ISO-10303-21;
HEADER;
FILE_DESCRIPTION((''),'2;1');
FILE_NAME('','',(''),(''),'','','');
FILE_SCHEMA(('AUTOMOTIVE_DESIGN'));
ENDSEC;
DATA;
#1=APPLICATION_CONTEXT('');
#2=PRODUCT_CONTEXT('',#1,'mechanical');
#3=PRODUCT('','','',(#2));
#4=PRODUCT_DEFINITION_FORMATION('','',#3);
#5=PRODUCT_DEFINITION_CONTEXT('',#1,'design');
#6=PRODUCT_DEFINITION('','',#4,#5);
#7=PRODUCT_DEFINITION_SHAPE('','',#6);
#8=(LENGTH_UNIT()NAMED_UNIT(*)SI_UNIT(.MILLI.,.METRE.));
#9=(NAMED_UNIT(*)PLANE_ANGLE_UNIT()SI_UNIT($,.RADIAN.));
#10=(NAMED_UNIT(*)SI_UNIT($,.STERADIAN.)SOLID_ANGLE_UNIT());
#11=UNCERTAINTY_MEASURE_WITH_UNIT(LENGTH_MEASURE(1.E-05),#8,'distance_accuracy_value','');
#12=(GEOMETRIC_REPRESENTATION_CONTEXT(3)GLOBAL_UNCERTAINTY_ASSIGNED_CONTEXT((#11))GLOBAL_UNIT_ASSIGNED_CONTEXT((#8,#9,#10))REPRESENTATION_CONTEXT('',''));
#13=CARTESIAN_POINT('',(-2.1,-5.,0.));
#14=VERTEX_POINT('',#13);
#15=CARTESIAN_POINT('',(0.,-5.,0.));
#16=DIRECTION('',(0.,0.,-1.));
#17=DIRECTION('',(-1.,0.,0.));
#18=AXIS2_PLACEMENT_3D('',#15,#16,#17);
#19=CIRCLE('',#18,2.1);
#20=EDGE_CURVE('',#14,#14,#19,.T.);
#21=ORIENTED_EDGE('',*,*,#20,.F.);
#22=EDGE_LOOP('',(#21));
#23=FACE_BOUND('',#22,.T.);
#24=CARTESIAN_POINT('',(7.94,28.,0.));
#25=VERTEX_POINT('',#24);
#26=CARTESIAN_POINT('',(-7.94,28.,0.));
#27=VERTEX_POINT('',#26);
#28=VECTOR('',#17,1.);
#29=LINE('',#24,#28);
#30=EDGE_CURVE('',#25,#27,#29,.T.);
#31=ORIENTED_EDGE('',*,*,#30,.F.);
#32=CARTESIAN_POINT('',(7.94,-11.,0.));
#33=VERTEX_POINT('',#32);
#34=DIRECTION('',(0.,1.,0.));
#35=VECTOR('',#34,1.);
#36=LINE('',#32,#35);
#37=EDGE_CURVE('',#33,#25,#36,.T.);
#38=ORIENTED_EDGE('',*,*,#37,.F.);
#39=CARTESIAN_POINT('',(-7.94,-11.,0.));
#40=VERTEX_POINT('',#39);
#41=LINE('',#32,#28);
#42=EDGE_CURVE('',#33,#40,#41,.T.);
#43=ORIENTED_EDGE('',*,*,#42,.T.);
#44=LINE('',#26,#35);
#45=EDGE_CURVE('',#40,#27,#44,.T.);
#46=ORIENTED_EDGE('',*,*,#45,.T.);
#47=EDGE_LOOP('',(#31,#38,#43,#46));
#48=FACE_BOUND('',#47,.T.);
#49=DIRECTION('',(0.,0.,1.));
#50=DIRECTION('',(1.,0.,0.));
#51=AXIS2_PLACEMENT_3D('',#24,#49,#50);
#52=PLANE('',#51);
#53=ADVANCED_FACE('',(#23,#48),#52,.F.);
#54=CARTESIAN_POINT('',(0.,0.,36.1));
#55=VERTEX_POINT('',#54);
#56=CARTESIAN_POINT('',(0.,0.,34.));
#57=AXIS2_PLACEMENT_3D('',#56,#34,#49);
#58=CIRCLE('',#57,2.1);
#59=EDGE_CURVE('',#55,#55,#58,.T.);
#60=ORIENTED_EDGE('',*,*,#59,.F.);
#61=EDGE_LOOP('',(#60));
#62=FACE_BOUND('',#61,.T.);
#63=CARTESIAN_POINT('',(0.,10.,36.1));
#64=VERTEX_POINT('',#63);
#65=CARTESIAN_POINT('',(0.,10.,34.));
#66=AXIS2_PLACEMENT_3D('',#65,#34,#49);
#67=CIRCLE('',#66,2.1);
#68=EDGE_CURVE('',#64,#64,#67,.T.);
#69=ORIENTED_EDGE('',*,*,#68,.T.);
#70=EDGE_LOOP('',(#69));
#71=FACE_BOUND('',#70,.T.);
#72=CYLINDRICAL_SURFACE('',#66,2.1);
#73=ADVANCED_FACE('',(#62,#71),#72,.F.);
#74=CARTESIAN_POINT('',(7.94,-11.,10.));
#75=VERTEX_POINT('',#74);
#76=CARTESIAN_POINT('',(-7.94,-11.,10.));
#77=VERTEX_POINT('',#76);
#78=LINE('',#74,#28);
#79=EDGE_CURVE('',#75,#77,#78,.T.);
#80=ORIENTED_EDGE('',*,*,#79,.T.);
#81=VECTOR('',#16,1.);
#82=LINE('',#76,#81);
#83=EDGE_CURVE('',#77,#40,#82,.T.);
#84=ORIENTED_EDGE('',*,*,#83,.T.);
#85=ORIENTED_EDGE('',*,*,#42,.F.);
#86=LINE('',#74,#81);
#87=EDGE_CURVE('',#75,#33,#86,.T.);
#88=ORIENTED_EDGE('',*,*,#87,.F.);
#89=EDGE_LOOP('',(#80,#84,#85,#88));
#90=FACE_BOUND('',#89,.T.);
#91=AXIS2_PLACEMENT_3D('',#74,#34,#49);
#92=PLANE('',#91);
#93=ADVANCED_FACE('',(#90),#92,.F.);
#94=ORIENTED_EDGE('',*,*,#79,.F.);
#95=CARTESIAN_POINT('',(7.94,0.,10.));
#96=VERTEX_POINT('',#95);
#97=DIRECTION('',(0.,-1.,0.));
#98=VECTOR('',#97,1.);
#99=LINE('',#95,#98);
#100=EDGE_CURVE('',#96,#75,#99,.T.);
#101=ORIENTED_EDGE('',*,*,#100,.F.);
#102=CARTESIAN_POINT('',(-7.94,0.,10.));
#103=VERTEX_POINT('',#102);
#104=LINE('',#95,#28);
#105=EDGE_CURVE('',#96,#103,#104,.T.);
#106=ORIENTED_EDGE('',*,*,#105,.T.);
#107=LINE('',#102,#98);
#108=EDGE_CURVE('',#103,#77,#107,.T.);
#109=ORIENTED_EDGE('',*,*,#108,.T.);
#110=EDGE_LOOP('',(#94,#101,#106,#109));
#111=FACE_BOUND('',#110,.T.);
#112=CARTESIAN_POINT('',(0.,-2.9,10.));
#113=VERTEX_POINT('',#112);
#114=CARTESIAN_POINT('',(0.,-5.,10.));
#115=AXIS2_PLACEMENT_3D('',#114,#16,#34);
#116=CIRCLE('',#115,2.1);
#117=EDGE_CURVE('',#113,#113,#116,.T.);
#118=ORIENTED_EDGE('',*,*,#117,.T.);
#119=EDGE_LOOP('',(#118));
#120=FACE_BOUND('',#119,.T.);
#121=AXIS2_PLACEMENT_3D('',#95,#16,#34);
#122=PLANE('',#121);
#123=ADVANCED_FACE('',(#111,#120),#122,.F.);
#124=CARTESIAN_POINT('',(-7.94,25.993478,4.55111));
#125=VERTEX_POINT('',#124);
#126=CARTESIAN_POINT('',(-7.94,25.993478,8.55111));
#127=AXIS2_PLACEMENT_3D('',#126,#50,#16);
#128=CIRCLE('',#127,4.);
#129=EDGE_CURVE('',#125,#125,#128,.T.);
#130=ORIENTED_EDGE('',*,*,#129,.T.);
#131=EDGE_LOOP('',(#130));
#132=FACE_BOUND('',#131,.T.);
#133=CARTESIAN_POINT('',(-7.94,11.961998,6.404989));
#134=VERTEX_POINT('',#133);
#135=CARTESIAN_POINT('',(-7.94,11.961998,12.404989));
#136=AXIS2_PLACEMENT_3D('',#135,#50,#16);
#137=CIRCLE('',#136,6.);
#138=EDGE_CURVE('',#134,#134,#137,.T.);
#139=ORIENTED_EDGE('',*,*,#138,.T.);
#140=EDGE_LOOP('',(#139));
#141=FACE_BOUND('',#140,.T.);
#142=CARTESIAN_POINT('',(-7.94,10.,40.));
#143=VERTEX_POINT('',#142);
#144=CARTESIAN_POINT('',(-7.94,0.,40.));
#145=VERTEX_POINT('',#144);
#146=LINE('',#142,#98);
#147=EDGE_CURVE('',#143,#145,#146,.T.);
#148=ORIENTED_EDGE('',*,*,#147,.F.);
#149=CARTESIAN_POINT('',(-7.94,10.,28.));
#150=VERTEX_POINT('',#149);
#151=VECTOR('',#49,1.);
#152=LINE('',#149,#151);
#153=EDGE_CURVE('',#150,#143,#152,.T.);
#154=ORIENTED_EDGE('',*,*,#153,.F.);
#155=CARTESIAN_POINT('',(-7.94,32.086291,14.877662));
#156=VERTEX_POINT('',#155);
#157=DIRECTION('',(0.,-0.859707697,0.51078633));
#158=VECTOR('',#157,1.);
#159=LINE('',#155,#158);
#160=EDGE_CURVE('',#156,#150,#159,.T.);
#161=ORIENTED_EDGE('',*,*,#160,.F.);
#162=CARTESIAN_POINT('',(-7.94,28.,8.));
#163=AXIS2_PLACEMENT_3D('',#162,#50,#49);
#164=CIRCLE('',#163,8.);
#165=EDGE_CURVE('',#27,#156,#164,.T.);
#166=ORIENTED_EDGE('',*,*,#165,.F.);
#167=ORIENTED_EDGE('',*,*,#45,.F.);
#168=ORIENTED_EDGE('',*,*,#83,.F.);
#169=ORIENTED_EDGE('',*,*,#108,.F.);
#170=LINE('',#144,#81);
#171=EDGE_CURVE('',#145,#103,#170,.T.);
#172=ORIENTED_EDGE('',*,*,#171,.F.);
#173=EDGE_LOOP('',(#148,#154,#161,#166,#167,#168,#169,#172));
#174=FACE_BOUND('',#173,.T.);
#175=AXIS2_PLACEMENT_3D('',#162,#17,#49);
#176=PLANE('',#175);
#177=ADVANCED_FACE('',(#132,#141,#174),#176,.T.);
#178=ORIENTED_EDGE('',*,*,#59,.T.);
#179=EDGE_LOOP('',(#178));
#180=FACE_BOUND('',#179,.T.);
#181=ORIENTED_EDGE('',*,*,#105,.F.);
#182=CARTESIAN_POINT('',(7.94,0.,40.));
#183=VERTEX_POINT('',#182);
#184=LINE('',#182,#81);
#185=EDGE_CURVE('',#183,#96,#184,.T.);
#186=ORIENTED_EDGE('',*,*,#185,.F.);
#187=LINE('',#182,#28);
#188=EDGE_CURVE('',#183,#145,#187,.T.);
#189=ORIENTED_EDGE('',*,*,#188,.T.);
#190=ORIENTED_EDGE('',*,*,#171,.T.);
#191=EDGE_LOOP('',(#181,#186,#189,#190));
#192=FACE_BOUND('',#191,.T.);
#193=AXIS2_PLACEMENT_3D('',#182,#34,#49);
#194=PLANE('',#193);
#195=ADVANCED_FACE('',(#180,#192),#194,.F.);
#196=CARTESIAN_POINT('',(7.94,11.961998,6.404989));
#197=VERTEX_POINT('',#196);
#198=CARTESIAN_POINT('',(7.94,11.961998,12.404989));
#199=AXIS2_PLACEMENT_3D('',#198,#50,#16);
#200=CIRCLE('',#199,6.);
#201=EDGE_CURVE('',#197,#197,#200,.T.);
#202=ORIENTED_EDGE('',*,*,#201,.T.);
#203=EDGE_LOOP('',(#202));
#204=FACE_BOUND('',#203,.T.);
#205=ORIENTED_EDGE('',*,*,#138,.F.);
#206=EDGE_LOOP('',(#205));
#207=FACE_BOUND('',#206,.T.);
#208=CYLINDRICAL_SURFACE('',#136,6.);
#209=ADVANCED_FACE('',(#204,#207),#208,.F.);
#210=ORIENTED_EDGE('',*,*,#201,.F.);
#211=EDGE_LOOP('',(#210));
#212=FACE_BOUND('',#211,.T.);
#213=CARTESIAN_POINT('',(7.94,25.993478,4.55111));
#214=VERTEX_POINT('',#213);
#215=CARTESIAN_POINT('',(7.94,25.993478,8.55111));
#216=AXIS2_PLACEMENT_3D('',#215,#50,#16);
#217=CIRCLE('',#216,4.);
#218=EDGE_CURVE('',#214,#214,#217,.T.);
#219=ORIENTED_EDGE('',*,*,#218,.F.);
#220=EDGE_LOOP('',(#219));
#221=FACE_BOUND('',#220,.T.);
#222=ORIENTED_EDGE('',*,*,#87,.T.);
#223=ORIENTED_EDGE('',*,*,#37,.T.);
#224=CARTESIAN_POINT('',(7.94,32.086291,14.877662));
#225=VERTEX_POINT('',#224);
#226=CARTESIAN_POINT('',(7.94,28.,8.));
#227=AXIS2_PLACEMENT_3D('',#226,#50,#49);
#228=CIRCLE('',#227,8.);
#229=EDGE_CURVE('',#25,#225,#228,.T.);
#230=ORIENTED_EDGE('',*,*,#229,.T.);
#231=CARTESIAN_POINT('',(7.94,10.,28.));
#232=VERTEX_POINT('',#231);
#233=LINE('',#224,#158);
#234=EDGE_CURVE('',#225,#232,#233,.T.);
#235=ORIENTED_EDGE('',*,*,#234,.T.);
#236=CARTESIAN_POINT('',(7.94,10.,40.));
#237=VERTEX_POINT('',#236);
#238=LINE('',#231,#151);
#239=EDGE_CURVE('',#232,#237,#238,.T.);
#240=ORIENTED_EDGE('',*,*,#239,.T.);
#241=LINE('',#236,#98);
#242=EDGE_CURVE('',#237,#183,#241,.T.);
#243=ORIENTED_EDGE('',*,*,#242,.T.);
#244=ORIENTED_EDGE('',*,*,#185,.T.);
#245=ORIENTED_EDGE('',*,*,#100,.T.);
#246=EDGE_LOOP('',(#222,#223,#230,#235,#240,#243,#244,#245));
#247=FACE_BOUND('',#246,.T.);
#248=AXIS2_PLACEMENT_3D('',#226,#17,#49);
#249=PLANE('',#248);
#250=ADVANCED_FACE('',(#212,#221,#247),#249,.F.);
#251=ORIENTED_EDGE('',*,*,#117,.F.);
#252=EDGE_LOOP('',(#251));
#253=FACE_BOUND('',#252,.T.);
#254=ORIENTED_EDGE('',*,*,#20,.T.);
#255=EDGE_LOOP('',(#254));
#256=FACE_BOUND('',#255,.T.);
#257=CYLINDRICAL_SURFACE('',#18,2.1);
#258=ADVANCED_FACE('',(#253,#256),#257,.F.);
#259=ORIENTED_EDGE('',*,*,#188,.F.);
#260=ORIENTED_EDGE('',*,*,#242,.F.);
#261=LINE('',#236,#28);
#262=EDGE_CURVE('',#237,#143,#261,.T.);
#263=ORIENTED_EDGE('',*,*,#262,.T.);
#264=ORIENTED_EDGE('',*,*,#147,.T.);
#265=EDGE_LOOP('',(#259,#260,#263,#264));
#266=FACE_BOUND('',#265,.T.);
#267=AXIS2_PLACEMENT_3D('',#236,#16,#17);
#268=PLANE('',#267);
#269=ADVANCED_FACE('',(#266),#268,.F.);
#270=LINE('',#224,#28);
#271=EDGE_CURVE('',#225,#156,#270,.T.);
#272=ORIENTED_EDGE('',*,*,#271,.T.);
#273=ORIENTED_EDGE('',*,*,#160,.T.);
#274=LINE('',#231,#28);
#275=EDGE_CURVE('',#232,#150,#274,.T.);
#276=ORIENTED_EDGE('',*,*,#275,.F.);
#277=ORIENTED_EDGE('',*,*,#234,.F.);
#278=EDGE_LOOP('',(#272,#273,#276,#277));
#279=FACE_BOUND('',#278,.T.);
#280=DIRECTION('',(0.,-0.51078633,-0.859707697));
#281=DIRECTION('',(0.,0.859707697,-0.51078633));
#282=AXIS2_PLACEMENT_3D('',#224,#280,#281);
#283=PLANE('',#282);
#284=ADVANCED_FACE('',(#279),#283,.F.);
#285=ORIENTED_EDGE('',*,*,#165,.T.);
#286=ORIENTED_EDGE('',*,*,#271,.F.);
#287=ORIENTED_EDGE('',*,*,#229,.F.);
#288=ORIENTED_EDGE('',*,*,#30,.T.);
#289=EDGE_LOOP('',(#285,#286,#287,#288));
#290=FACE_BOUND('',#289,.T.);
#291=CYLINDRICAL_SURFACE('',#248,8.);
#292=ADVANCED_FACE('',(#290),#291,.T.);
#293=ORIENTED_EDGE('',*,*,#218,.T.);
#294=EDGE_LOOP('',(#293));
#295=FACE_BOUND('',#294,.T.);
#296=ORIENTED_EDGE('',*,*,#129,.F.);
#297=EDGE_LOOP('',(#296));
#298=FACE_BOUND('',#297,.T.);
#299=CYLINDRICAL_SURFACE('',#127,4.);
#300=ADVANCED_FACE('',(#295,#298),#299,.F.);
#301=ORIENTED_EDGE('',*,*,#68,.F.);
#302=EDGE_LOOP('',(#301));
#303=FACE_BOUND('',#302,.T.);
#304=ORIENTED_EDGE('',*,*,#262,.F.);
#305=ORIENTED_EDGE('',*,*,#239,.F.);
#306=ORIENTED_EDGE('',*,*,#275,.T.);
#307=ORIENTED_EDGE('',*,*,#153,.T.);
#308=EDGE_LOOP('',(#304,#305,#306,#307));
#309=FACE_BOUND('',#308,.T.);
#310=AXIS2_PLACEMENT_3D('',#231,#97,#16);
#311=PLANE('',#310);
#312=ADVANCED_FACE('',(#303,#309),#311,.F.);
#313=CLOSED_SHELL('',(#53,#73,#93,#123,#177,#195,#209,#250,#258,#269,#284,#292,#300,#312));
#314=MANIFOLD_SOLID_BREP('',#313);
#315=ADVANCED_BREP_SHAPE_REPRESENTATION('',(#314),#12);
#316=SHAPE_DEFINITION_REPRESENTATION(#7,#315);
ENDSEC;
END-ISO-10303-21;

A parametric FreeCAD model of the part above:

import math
import FreeCAD as App
import Part
import Sketcher
Q = App.Units.Quantity

doc = App.newDocument("Part")
body = doc.addObject("PartDesign::Body", "Body")

# Sketch on YZ plane
sketch1 = body.newObject("Sketcher::SketchObject", "Sketch")
sketch1.AttachmentSupport = (doc.getObject("YZ_Plane"), [""])
sketch1.MapMode = "FlatFace"
sketch1.addGeometry([
    Part.LineSegment(App.Vector(0, 40, 0), App.Vector(0, 10, 0)),  # 0
    Part.LineSegment(App.Vector(0, 10, 0), App.Vector(-11, 10, 0)),  # 1
    Part.LineSegment(App.Vector(-11, 10, 0), App.Vector(-11, 0, 0)),  # 2
    Part.LineSegment(App.Vector(-11, 0, 0), App.Vector(28, 0, 0)),  # 3
    Part.ArcOfCircle(Part.Circle(App.Vector(28, 8, 0), App.Vector(0, 0, 1), 8), math.radians(-90), math.radians(59)),  # 4
    Part.LineSegment(App.Vector(32, 15, 0), App.Vector(10, 28, 0)),  # 5
    Part.LineSegment(App.Vector(10, 28, 0), App.Vector(10, 40, 0)),  # 6
    Part.LineSegment(App.Vector(10, 40, 0), App.Vector(0, 40, 0)),  # 7
], False)
sketch1.addConstraint([
    Sketcher.Constraint("Coincident", 0, 2, 1, 1),
    Sketcher.Constraint("Coincident", 1, 2, 2, 1),
    Sketcher.Constraint("Coincident", 2, 2, 3, 1),
    Sketcher.Constraint("Tangent", 3, 2, 4, 1),
    Sketcher.Constraint("Tangent", 4, 2, 5, 1),
    Sketcher.Constraint("Coincident", 5, 2, 6, 1),
    Sketcher.Constraint("Coincident", 6, 2, 7, 1),
    Sketcher.Constraint("Coincident", 7, 2, 0, 1),
    Sketcher.Constraint("Vertical", 0),
    Sketcher.Constraint("Horizontal", 1),
    Sketcher.Constraint("Vertical", 2),
    Sketcher.Constraint("Horizontal", 3),
    Sketcher.Constraint("Vertical", 6),
    Sketcher.Constraint("Horizontal", 7),
    Sketcher.Constraint("PointOnObject", 0, 2, -2),
    Sketcher.Constraint("PointOnObject", 2, 2, -1),
    Sketcher.Constraint("Equal", 7, 2),
    Sketcher.Constraint("Radius", 4, Q("8 mm")),
    Sketcher.Constraint("DistanceX", 1, 2, 1, 1, Q("11 mm")),
    Sketcher.Constraint("DistanceX", 3, 1, 3, 2, Q("39 mm")),
    Sketcher.Constraint("DistanceX", 7, 2, 7, 1, Q("10 mm")),
    Sketcher.Constraint("DistanceY", 0, 2, 0, 1, Q("30 mm")),
    Sketcher.Constraint("DistanceY", 6, 1, 6, 2, Q("12 mm")),
])
pad1 = body.newObject("PartDesign::Pad", "Pad")
pad1.Profile = sketch1
pad1.Length = 15.88
pad1.Midplane = True

# Sketch on XZ plane
sketch2 = body.newObject("Sketcher::SketchObject", "Sketch001")
sketch2.AttachmentSupport = (doc.getObject("XZ_Plane"), [""])
sketch2.MapMode = "FlatFace"
sketch2.AttachmentOffset = App.Placement(App.Vector(0, 0, -10), App.Rotation())
sketch2.addGeometry([
    Part.Circle(App.Vector(66.1, 34, 0), App.Vector(0, 0, 1), 2.1),
    Part.Circle(App.Vector(0, 34, 0), App.Vector(0, 0, 1), 2.1),
], False)
sketch2.addConstraint([
    Sketcher.Constraint("Equal", 0, 1),
    Sketcher.Constraint("PointOnObject", 1, 3, -2),
    Sketcher.Constraint("Horizontal", 0, 3, 1, 3),
    Sketcher.Constraint("Diameter", 0, Q("4.2 mm")),
    Sketcher.Constraint("DistanceY", -1, 1, 0, 3, Q("34 mm")),
    Sketcher.Constraint("DistanceX", -1, 1, 0, 3, Q("66.125 mm")),
])
doc.recompute()
hole = body.newObject("PartDesign::Hole", "Hole")
hole.Profile = sketch2
hole.ThreadType = "None"
hole.Diameter = 4.2
hole.DepthType = "Dimension"
hole.Depth = 20
hole.DrillPoint = "Angled"
hole.DrillPointAngle = 118
hole.Reversed = True

# Sketch on XZ plane
sketch3 = body.newObject("Sketcher::SketchObject", "Sketch002")
sketch3.AttachmentSupport = (doc.getObject("XZ_Plane"), [""])
sketch3.MapMode = "FlatFace"
sketch3.AttachmentOffset = App.Placement(App.Vector(0, 0, -10), App.Rotation())
sketch3.addGeometry([
    Part.Circle(App.Vector(0, 34, 0), App.Vector(0, 0, 1), 2.1),
    Part.Circle(App.Vector(-66.1, 34, 0), App.Vector(0, 0, 1), 2.1),
], False)
sketch3.addConstraint([
    Sketcher.Constraint("Equal", 0, 1),
    Sketcher.Constraint("PointOnObject", 0, 3, -2),
    Sketcher.Constraint("Horizontal", 0, 3, 1, 3),
    Sketcher.Constraint("Diameter", 0, Q("4.2 mm")),
    Sketcher.Constraint("DistanceY", -1, 1, 0, 3, Q("34 mm")),
    Sketcher.Constraint("DistanceX", 1, 3, -1, 1, Q("66.125 mm")),
])
doc.recompute()
hole2 = body.newObject("PartDesign::Hole", "Hole001")
hole2.Profile = sketch3
hole2.ThreadType = "None"
hole2.Diameter = 4.2
hole2.DepthType = "Dimension"
hole2.Depth = 20
hole2.DrillPoint = "Angled"
hole2.DrillPointAngle = 118
hole2.Reversed = True

# Sketch on XY plane
sketch4 = body.newObject("Sketcher::SketchObject", "Sketch003")
sketch4.AttachmentSupport = (doc.getObject("XY_Plane"), [""])
sketch4.MapMode = "FlatFace"
sketch4.addGeometry([
    Part.Circle(App.Vector(66.1, -5, 0), App.Vector(0, 0, 1), 2.1),
    Part.Circle(App.Vector(0, -5, 0), App.Vector(0, 0, 1), 2.1),
], False)
sketch4.addConstraint([
    Sketcher.Constraint("Equal", 0, 1),
    Sketcher.Constraint("PointOnObject", 1, 3, -2),
    Sketcher.Constraint("Horizontal", 0, 3, 1, 3),
    Sketcher.Constraint("Diameter", 0, Q("4.2 mm")),
    Sketcher.Constraint("DistanceY", 0, 3, -1, 1, Q("5 mm")),
    Sketcher.Constraint("DistanceX", -1, 1, 0, 3, Q("66.125 mm")),
])
doc.recompute()
hole3 = body.newObject("PartDesign::Hole", "Hole002")
hole3.Profile = sketch4
hole3.ThreadType = "None"
hole3.Diameter = 4.2
hole3.DepthType = "Dimension"
hole3.Depth = 20
hole3.DrillPoint = "Angled"
hole3.DrillPointAngle = 118
hole3.Reversed = True

# Sketch on XY plane
sketch5 = body.newObject("Sketcher::SketchObject", "Sketch004")
sketch5.AttachmentSupport = (doc.getObject("XY_Plane"), [""])
sketch5.MapMode = "FlatFace"
sketch5.addGeometry([
    Part.Circle(App.Vector(0, -5, 0), App.Vector(0, 0, 1), 2.1),
    Part.Circle(App.Vector(-66.1, -5, 0), App.Vector(0, 0, 1), 2.1),
], False)
sketch5.addConstraint([
    Sketcher.Constraint("Equal", 0, 1),
    Sketcher.Constraint("PointOnObject", 0, 3, -2),
    Sketcher.Constraint("Horizontal", 0, 3, 1, 3),
    Sketcher.Constraint("Diameter", 0, Q("4.2 mm")),
    Sketcher.Constraint("DistanceY", 0, 3, -1, 1, Q("5 mm")),
    Sketcher.Constraint("DistanceX", 1, 3, -1, 1, Q("66.125 mm")),
])
doc.recompute()
hole4 = body.newObject("PartDesign::Hole", "Hole003")
hole4.Profile = sketch5
hole4.ThreadType = "None"
hole4.Diameter = 4.2
hole4.DepthType = "Dimension"
hole4.Depth = 20
hole4.DrillPoint = "Angled"
hole4.DrillPointAngle = 118
hole4.Reversed = True

# Sketch on YZ plane
sketch6 = body.newObject("Sketcher::SketchObject", "Sketch005")
sketch6.AttachmentSupport = (doc.getObject("YZ_Plane"), [""])
sketch6.MapMode = "FlatFace"
sketch6.AttachmentOffset = App.Placement(App.Vector(0, 0, 7.94), App.Rotation())
sketch6.addGeometry([
    Part.Circle(App.Vector(12, 12.4, 0), App.Vector(0, 0, 1), 6),
    Part.Circle(App.Vector(26, 8.6, 0), App.Vector(0, 0, 1), 4),
], False)
sketch6.addConstraint([
    Sketcher.Constraint("Diameter", 0, Q("12 mm")),
    Sketcher.Constraint("Diameter", 1, Q("8 mm")),
    Sketcher.Constraint("DistanceX", -1, 1, 0, 3, Q("11.961998 mm")),
    Sketcher.Constraint("DistanceY", -1, 1, 0, 3, Q("12.404989 mm")),
    Sketcher.Constraint("DistanceX", -1, 1, 1, 3, Q("25.993478 mm")),
    Sketcher.Constraint("DistanceY", -1, 1, 1, 3, Q("8.55111 mm")),
])
pocket1 = body.newObject("PartDesign::Pocket", "Pocket")
pocket1.Profile = sketch6
pocket1.Type = "ThroughAll"

doc.recompute()
